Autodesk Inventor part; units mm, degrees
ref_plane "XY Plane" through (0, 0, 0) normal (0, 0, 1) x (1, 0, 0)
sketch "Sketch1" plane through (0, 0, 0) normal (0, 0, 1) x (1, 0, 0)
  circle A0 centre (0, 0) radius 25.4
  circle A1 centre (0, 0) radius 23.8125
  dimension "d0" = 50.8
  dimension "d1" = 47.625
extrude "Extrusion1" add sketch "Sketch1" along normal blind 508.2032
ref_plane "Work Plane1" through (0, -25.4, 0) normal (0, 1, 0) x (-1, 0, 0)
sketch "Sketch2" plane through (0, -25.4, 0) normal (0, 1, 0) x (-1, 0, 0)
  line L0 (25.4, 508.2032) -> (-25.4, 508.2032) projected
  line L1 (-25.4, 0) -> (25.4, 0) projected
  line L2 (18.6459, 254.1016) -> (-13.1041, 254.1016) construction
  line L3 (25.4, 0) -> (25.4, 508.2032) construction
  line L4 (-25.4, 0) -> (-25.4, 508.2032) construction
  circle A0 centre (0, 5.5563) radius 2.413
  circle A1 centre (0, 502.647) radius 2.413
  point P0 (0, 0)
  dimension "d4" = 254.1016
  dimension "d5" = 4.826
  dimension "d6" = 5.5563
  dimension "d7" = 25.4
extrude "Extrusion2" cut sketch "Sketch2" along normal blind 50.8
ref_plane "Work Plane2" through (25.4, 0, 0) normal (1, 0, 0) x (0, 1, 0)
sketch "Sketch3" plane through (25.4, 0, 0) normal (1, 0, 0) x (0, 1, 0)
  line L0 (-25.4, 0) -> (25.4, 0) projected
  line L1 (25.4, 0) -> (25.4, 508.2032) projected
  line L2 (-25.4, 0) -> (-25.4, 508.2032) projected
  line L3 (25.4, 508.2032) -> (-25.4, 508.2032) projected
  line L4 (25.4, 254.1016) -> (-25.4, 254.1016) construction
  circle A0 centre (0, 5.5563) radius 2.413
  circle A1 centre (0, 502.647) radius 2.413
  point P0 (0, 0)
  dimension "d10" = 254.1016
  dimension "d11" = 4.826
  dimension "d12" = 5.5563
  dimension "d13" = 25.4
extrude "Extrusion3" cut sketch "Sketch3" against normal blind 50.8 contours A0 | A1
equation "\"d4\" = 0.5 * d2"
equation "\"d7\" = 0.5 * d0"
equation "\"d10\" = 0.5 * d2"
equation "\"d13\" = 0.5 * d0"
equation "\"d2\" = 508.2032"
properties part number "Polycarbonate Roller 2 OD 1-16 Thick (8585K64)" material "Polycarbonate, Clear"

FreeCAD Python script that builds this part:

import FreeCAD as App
import Part
import Sketcher

V = App.Vector
Q = App.Units.Quantity

doc = App.newDocument("Part")
body = doc.addObject("PartDesign::Body", "Body")

# Sketch on XY plane
sketch1 = doc.addObject("Sketcher::SketchObject", "Sketch")
body.addObject(sketch1)
sketch1.AttachmentSupport = (doc.XY_Plane, [""])
sketch1.MapMode = "FlatFace"
sketch1.addGeometry([
    Part.Circle(V(0, 0, 0), V(0, 0, 1), 25),
    Part.Circle(V(0, 0, 0), V(0, 0, 1), 24),
], False)
sketch1.addConstraint([
    Sketcher.Constraint("Coincident", 0, 3, -1, 1),
    Sketcher.Constraint("Coincident", 1, 3, -1, 1),
    Sketcher.Constraint("Diameter", 0, Q("2 in")),
    Sketcher.Constraint("Diameter", 1, Q("1.875 in")),
])
pad1 = doc.addObject("PartDesign::Pad", "Pad")
body.addObject(pad1)
pad1.Profile = sketch1
pad1.Length = Q("20.008 in")

# Sketch on XZ plane
sketch2 = doc.addObject("Sketcher::SketchObject", "Sketch001")
body.addObject(sketch2)
sketch2.AttachmentSupport = (doc.XZ_Plane, [""])
sketch2.MapMode = "FlatFace"
sketch2.AttachmentOffset = App.Placement(V(0, 0, 1 * 25.4), App.Rotation())
sketch2.addGeometry([
    Part.Circle(V(0, 5.6, 0), V(0, 0, 1), 2.4),
    Part.Circle(V(0, 502.6, 0), V(0, 0, 1), 2.4),
], False)
sketch2.addConstraint([
    Sketcher.Constraint("Equal", 0, 1),
    Sketcher.Constraint("PointOnObject", 0, 3, -2),
    Sketcher.Constraint("PointOnObject", 1, 3, -2),
    Sketcher.Constraint("Diameter", 0, Q("0.19 in")),
    Sketcher.Constraint("DistanceY", -1, 1, 0, 3, Q("0.218752 in")),
    Sketcher.Constraint("DistanceY", 0, 3, 1, 3, Q("19.5705 in")),
])
pocket1 = doc.addObject("PartDesign::Pocket", "Pocket")
body.addObject(pocket1)
pocket1.Profile = sketch2
pocket1.Length = Q("2 in")

# Sketch on YZ plane
sketch3 = doc.addObject("Sketcher::SketchObject", "Sketch002")
body.addObject(sketch3)
sketch3.AttachmentSupport = (doc.YZ_Plane, [""])
sketch3.MapMode = "FlatFace"
sketch3.AttachmentOffset = App.Placement(V(0, 0, 1 * 25.4), App.Rotation())
sketch3.addGeometry([
    Part.Circle(V(0, 5.6, 0), V(0, 0, 1), 2.4),
    Part.Circle(V(0, 502.6, 0), V(0, 0, 1), 2.4),
], False)
sketch3.addConstraint([
    Sketcher.Constraint("Equal", 0, 1),
    Sketcher.Constraint("PointOnObject", 0, 3, -2),
    Sketcher.Constraint("PointOnObject", 1, 3, -2),
    Sketcher.Constraint("Diameter", 0, Q("0.19 in")),
    Sketcher.Constraint("DistanceY", -1, 1, 0, 3, Q("0.218752 in")),
    Sketcher.Constraint("DistanceY", 0, 3, 1, 3, Q("19.5705 in")),
])
pocket2 = doc.addObject("PartDesign::Pocket", "Pocket001")
body.addObject(pocket2)
pocket2.Profile = sketch3
pocket2.Length = Q("2 in")

doc.recompute()
